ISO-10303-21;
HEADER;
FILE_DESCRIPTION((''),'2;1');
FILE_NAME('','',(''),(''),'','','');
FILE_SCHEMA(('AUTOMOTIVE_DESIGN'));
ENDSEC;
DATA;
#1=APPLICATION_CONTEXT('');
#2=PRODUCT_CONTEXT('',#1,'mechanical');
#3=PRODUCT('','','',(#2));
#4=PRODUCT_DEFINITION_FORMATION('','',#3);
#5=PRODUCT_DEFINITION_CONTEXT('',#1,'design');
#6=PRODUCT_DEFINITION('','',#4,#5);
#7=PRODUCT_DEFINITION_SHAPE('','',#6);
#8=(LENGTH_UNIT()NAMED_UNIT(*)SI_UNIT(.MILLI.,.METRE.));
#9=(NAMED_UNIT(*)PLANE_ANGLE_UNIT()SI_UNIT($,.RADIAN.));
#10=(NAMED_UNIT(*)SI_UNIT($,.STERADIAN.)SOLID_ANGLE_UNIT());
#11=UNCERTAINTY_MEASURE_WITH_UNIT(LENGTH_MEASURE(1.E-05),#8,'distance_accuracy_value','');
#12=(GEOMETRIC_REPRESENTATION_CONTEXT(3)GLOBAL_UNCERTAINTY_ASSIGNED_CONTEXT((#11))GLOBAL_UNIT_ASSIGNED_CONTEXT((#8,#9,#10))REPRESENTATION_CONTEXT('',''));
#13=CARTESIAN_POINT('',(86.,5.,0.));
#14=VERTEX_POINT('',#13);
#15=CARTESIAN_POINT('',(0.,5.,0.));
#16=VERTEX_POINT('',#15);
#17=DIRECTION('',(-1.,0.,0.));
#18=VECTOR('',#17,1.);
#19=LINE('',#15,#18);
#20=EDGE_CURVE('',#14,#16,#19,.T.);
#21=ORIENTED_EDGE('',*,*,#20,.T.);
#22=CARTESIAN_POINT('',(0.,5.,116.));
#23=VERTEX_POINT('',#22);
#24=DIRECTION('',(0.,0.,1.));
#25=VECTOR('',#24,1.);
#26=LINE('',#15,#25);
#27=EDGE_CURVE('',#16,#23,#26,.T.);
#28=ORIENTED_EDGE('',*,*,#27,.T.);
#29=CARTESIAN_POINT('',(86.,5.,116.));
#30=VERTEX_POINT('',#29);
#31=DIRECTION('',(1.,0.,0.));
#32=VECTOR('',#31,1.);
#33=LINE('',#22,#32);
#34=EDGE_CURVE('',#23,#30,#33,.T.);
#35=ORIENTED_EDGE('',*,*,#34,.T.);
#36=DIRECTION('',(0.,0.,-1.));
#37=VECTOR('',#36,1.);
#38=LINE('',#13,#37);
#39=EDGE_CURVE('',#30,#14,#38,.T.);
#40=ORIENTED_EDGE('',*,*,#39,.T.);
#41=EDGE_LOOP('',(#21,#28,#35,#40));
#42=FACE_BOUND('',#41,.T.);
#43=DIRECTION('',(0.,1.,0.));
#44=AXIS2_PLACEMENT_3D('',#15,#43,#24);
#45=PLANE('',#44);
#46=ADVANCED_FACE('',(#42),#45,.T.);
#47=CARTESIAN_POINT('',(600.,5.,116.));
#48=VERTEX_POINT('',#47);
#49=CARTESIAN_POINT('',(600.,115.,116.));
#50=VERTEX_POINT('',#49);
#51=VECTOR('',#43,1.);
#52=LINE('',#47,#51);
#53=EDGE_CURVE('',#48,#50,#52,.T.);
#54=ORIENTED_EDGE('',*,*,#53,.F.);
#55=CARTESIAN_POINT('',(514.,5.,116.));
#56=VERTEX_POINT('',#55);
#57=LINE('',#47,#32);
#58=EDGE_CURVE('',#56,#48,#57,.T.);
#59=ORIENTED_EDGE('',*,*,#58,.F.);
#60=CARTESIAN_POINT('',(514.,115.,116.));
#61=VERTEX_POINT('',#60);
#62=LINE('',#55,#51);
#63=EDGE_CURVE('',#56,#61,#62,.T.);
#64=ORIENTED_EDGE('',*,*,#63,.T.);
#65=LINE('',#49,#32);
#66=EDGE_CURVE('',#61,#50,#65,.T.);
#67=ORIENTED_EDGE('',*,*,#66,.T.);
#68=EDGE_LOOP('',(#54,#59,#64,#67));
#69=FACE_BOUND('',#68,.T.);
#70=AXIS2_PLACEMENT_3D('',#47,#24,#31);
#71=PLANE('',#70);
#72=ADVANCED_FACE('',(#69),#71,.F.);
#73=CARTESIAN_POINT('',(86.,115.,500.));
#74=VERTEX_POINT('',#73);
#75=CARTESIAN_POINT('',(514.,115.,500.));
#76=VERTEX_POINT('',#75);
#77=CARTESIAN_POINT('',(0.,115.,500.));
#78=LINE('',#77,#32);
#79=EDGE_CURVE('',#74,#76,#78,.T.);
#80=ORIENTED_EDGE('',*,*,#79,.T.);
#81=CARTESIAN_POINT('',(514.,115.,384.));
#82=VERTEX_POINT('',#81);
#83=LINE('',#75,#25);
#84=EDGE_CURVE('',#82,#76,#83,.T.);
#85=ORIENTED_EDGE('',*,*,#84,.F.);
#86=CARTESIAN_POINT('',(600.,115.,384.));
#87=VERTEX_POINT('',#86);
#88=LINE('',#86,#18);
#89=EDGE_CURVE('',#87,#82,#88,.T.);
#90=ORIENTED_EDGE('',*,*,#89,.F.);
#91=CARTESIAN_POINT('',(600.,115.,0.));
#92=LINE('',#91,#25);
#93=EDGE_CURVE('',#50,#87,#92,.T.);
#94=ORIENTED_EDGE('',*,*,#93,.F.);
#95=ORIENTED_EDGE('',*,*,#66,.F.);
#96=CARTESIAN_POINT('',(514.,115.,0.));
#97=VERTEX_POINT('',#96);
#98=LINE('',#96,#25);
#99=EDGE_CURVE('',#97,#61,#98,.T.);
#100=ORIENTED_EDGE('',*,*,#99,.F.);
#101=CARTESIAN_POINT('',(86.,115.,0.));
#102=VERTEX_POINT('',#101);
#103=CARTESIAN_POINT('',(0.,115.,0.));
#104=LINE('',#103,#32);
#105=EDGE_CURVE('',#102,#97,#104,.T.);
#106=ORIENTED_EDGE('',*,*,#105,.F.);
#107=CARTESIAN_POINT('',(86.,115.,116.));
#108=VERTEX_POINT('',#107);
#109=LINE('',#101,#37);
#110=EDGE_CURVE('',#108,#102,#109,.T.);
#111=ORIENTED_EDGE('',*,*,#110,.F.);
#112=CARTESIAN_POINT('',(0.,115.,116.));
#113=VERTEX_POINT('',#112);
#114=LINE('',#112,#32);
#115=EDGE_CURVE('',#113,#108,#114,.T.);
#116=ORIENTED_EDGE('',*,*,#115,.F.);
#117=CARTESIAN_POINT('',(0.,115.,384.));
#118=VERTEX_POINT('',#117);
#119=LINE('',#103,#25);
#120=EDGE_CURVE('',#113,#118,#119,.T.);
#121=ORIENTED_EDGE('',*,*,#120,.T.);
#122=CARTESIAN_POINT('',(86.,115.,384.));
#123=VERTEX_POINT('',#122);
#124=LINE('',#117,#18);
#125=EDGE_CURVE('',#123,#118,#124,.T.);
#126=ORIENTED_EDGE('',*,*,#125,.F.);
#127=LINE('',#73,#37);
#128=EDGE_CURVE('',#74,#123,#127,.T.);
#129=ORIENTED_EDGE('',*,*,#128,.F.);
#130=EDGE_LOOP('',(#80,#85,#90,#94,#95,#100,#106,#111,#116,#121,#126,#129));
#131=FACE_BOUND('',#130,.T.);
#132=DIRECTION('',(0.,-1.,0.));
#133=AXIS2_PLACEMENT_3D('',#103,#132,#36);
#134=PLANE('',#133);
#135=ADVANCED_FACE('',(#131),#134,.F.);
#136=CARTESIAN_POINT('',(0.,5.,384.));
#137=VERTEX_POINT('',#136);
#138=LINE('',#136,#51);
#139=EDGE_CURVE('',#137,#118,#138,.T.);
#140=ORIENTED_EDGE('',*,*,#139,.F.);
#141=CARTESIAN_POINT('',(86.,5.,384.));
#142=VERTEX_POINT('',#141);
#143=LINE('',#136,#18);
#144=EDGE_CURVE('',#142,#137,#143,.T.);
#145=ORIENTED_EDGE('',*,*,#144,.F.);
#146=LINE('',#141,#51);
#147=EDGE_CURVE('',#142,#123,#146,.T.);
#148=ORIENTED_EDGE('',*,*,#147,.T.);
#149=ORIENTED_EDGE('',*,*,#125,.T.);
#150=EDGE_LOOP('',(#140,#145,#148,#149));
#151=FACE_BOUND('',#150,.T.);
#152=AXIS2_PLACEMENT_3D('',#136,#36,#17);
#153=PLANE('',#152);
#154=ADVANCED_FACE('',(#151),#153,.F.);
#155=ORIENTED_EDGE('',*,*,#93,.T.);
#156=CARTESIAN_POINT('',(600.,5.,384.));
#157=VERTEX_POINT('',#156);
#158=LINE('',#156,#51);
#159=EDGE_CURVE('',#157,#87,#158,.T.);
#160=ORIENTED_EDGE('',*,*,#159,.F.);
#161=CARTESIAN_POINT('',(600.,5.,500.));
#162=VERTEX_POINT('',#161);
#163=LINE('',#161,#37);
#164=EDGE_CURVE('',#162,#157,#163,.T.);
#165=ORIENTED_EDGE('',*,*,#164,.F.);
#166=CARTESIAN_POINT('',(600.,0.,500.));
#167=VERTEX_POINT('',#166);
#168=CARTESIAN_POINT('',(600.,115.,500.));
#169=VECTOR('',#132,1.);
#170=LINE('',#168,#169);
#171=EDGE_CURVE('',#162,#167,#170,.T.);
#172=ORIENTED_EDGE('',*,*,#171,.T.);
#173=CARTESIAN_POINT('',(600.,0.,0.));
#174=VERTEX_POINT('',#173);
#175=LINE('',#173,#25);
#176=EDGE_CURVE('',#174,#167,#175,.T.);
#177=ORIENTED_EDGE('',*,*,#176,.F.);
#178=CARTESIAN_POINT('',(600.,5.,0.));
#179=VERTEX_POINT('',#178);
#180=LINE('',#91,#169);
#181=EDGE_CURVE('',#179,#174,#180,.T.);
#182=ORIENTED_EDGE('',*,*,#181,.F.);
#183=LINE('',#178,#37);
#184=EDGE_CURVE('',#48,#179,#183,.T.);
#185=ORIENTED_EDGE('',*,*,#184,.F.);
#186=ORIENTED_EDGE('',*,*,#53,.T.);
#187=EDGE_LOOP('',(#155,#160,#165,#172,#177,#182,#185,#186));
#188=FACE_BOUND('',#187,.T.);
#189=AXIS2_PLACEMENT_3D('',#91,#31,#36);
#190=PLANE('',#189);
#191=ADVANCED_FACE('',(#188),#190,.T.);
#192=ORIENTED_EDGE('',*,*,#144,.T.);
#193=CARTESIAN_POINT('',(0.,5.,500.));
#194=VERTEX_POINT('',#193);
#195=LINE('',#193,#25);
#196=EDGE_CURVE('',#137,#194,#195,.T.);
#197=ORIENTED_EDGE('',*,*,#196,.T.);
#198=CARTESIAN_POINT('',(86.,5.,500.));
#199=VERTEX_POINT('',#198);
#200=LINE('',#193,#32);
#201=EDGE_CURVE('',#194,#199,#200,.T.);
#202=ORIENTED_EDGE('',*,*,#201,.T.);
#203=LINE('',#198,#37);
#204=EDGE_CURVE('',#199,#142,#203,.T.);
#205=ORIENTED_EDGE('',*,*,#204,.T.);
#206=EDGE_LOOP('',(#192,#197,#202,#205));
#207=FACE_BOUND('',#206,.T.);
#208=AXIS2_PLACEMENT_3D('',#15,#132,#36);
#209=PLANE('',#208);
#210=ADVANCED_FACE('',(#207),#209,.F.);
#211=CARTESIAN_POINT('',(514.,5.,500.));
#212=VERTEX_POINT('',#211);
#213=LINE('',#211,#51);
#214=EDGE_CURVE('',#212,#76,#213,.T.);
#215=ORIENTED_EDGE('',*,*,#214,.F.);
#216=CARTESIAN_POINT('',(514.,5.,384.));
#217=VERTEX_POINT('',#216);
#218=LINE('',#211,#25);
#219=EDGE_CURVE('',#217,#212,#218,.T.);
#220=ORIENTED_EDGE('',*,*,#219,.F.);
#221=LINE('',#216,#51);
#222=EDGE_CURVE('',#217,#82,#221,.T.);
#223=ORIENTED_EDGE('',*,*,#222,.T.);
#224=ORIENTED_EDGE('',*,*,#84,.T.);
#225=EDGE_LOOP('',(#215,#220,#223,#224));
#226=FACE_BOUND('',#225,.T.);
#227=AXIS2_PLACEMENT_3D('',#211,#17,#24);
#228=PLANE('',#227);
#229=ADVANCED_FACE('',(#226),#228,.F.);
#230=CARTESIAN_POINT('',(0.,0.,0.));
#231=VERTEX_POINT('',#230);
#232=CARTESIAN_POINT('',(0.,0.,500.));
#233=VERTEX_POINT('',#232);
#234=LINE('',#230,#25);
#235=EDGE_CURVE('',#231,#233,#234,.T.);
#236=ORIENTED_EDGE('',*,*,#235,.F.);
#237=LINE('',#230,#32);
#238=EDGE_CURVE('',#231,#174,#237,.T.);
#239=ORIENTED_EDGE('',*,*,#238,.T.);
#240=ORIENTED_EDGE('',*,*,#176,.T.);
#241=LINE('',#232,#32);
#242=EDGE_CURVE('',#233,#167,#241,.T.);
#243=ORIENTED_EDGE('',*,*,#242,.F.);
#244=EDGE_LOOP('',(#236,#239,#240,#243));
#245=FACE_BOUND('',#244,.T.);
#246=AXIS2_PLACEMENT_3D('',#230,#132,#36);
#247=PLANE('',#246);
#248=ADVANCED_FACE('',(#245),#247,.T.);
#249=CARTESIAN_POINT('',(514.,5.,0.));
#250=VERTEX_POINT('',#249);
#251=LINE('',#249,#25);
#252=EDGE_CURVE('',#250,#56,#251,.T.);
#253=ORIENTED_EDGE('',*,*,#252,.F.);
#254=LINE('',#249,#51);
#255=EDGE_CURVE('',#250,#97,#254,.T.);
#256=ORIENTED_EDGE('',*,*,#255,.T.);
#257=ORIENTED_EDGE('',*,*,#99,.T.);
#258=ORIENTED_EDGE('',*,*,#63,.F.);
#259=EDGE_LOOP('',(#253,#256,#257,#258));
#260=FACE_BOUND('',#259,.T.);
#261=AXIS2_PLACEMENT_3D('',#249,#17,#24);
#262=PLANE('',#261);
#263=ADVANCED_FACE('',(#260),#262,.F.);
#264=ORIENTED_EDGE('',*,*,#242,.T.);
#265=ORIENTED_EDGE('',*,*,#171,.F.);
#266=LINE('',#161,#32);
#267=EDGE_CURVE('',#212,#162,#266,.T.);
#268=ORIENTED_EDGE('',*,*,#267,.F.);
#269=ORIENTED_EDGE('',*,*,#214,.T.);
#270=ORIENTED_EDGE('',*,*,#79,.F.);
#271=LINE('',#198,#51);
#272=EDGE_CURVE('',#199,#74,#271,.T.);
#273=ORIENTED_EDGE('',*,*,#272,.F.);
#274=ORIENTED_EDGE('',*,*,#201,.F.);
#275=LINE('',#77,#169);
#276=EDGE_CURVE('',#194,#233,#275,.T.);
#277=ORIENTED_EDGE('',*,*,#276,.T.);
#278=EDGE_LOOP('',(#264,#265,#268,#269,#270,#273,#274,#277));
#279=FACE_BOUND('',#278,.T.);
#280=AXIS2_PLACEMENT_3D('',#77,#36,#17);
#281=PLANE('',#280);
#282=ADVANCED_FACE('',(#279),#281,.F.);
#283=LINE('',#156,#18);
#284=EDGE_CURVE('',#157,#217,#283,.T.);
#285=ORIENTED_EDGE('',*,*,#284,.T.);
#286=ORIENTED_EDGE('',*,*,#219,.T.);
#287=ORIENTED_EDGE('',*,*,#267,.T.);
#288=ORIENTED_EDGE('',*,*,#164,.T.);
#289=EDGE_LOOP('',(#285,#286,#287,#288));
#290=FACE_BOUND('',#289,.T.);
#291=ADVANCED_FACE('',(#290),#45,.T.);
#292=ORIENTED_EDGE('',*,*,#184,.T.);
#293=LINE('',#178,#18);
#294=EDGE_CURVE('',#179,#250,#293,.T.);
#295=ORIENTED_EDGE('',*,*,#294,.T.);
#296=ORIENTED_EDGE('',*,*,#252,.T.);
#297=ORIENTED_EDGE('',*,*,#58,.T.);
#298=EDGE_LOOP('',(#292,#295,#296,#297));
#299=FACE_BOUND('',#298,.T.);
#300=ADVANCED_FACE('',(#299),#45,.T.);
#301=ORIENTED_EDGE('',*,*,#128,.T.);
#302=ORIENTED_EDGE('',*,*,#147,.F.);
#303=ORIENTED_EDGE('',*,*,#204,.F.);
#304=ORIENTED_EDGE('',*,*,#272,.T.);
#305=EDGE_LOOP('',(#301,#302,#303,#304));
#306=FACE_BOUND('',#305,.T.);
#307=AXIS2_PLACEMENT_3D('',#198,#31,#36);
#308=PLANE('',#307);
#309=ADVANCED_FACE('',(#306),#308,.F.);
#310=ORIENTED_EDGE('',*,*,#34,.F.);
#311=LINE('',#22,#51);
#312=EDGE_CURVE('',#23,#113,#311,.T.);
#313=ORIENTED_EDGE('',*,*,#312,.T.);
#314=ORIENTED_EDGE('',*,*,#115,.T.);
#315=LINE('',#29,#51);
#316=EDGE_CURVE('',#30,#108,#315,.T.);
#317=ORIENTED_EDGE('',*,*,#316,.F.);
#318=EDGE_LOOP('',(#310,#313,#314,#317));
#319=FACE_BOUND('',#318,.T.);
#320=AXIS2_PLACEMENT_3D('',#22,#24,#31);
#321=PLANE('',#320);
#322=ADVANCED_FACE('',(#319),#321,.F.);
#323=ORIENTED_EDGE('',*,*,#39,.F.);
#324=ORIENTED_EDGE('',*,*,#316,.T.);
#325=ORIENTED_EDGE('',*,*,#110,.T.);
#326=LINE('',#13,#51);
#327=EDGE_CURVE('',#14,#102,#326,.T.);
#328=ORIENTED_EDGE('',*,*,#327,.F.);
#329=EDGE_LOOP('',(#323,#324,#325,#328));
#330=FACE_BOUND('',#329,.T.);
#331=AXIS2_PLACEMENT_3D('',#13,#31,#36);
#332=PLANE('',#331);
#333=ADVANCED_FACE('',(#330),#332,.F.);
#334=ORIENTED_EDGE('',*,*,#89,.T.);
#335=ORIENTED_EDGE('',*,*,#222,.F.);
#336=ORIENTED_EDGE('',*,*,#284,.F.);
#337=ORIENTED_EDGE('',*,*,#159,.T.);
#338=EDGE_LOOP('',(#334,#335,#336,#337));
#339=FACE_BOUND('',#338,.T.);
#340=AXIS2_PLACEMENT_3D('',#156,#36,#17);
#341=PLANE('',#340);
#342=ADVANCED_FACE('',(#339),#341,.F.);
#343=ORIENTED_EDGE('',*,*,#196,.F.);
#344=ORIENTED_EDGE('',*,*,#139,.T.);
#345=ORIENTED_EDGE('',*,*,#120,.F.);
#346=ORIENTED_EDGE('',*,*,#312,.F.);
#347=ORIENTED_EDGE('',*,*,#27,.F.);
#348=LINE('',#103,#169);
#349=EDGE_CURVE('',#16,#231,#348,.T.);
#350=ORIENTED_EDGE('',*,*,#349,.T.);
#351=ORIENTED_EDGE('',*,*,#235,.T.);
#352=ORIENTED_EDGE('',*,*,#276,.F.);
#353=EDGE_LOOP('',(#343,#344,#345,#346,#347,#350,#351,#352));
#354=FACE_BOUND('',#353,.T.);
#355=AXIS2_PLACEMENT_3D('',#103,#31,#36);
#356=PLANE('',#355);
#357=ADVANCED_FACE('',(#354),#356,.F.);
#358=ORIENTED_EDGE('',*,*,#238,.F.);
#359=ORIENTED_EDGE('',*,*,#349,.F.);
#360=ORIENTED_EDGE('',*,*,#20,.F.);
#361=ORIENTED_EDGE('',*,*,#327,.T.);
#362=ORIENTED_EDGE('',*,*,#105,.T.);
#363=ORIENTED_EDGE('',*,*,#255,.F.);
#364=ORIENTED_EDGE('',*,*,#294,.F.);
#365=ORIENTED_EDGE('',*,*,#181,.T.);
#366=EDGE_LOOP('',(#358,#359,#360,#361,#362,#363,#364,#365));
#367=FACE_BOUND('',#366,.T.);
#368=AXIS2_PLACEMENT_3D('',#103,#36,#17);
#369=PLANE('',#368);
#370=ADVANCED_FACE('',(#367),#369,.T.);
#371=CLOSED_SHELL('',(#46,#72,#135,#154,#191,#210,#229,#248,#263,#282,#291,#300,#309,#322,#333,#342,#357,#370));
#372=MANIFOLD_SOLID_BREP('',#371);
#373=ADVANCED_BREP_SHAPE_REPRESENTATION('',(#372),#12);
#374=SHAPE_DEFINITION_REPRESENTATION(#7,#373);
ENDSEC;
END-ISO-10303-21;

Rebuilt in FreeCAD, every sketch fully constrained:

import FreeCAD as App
import Part
import Sketcher

V = App.Vector

doc = App.newDocument("Part")
body = doc.addObject("PartDesign::Body", "Body")

sketch1 = doc.addObject("Sketcher::SketchObject", "Sketch")
body.addObject(sketch1)
sketch1.AttachmentSupport = (doc.XZ_Plane, [""])
sketch1.MapMode = "FlatFace"
sketch1.addGeometry([
    Part.LineSegment(V(0, 0, 0), V(0, 500, 0)),
    Part.LineSegment(V(0, 500, 0), V(600, 500, 0)),
    Part.LineSegment(V(600, 500, 0), V(600, 0, 0)),
    Part.LineSegment(V(600, 0, 0), V(0, 0, 0)),
], False)
sketch1.addConstraint([
    Sketcher.Constraint("Coincident", 0, 2, 1, 1),
    Sketcher.Constraint("Coincident", 1, 2, 2, 1),
    Sketcher.Constraint("Coincident", 2, 2, 3, 1),
    Sketcher.Constraint("Coincident", 3, 2, 0, 1),
    Sketcher.Constraint("Vertical", 0),
    Sketcher.Constraint("Horizontal", 1),
    Sketcher.Constraint("Vertical", 2),
    Sketcher.Constraint("Horizontal", 3),
    Sketcher.Constraint("Coincident", 3, 2, -1, 1),
    Sketcher.Constraint("DistanceX", 1, 1, 1, 2, 600.0),
    Sketcher.Constraint("DistanceY", 0, 1, 0, 2, 500.0),
])
pad1 = doc.addObject("PartDesign::Pad", "Pad")
body.addObject(pad1)
pad1.Profile = sketch1
pad1.Length = 115
pad1.Reversed = True

sketch2 = doc.addObject("Sketcher::SketchObject", "Sketch001")
body.addObject(sketch2)
sketch2.AttachmentSupport = (doc.XZ_Plane, [""])
sketch2.MapMode = "FlatFace"
sketch2.AttachmentOffset = App.Placement(V(0, 0, -115), App.Rotation())
sketch2.addGeometry([
    Part.LineSegment(V(0, 384, 0), V(0, 500, 0)),
    Part.LineSegment(V(0, 500, 0), V(86, 500, 0)),
    Part.LineSegment(V(86, 500, 0), V(86, 384, 0)),
    Part.LineSegment(V(86, 384, 0), V(0, 384, 0)),
    Part.LineSegment(V(0, 0, 0), V(0, 116, 0)),
    Part.LineSegment(V(0, 116, 0), V(86, 116, 0)),
    Part.LineSegment(V(86, 116, 0), V(86, 0, 0)),
    Part.LineSegment(V(86, 0, 0), V(0, 0, 0)),
    Part.LineSegment(V(514, 0, 0), V(514, 116, 0)),
    Part.LineSegment(V(514, 116, 0), V(600, 116, 0)),
    Part.LineSegment(V(600, 116, 0), V(600, 0, 0)),
    Part.LineSegment(V(600, 0, 0), V(514, 0, 0)),
    Part.LineSegment(V(514, 384, 0), V(514, 500, 0)),
    Part.LineSegment(V(514, 500, 0), V(600, 500, 0)),
    Part.LineSegment(V(600, 500, 0), V(600, 384, 0)),
    Part.LineSegment(V(600, 384, 0), V(514, 384, 0)),
], False)
sketch2.addConstraint([
    Sketcher.Constraint("Coincident", 0, 2, 1, 1),
    Sketcher.Constraint("Coincident", 1, 2, 2, 1),
    Sketcher.Constraint("Coincident", 2, 2, 3, 1),
    Sketcher.Constraint("Coincident", 3, 2, 0, 1),
    Sketcher.Constraint("Coincident", 4, 2, 5, 1),
    Sketcher.Constraint("Coincident", 5, 2, 6, 1),
    Sketcher.Constraint("Coincident", 6, 2, 7, 1),
    Sketcher.Constraint("Coincident", 7, 2, 4, 1),
    Sketcher.Constraint("Coincident", 8, 2, 9, 1),
    Sketcher.Constraint("Coincident", 9, 2, 10, 1),
    Sketcher.Constraint("Coincident", 10, 2, 11, 1),
    Sketcher.Constraint("Coincident", 11, 2, 8, 1),
    Sketcher.Constraint("Coincident", 12, 2, 13, 1),
    Sketcher.Constraint("Coincident", 13, 2, 14, 1),
    Sketcher.Constraint("Coincident", 14, 2, 15, 1),
    Sketcher.Constraint("Coincident", 15, 2, 12, 1),
    Sketcher.Constraint("Vertical", 0),
    Sketcher.Constraint("Horizontal", 1),
    Sketcher.Constraint("Vertical", 2),
    Sketcher.Constraint("Horizontal", 3),
    Sketcher.Constraint("Vertical", 4),
    Sketcher.Constraint("Horizontal", 5),
    Sketcher.Constraint("Vertical", 6),
    Sketcher.Constraint("Horizontal", 7),
    Sketcher.Constraint("Vertical", 8),
    Sketcher.Constraint("Horizontal", 9),
    Sketcher.Constraint("Vertical", 10),
    Sketcher.Constraint("Horizontal", 11),
    Sketcher.Constraint("Vertical", 12),
    Sketcher.Constraint("Horizontal", 13),
    Sketcher.Constraint("Vertical", 14),
    Sketcher.Constraint("Horizontal", 15),
    Sketcher.Constraint("Coincident", 7, 2, -1, 1),
    Sketcher.Constraint("PointOnObject", 0, 2, -2),
    Sketcher.Constraint("PointOnObject", 10, 2, -1),
    Sketcher.Constraint("Horizontal", 5, 2, 8, 2),
    Sketcher.Constraint("Horizontal", 1, 2, 12, 2),
    Sketcher.Constraint("Horizontal", 3, 2, 14, 2),
    Sketcher.Constraint("Vertical", 2, 2, 5, 2),
    Sketcher.Constraint("Vertical", 11, 2, 12, 2),
    Sketcher.Constraint("Vertical", 10, 2, 13, 2),
    Sketcher.Constraint("Equal", 7, 9),
    Sketcher.Constraint("Equal", 2, 4),
    Sketcher.Constraint("DistanceX", 1, 1, 1, 2, 86.0),
    Sketcher.Constraint("DistanceY", 0, 1, 0, 2, 116.0),
    Sketcher.Constraint("DistanceY", -1, 1, 0, 2, 500.0),
    Sketcher.Constraint("DistanceX", -1, 1, 8, 2, 514.0),
])
pocket1 = doc.addObject("PartDesign::Pocket", "Pocket")
body.addObject(pocket1)
pocket1.Profile = sketch2
pocket1.Length = 110
pocket1.Reversed = True

doc.recompute()
